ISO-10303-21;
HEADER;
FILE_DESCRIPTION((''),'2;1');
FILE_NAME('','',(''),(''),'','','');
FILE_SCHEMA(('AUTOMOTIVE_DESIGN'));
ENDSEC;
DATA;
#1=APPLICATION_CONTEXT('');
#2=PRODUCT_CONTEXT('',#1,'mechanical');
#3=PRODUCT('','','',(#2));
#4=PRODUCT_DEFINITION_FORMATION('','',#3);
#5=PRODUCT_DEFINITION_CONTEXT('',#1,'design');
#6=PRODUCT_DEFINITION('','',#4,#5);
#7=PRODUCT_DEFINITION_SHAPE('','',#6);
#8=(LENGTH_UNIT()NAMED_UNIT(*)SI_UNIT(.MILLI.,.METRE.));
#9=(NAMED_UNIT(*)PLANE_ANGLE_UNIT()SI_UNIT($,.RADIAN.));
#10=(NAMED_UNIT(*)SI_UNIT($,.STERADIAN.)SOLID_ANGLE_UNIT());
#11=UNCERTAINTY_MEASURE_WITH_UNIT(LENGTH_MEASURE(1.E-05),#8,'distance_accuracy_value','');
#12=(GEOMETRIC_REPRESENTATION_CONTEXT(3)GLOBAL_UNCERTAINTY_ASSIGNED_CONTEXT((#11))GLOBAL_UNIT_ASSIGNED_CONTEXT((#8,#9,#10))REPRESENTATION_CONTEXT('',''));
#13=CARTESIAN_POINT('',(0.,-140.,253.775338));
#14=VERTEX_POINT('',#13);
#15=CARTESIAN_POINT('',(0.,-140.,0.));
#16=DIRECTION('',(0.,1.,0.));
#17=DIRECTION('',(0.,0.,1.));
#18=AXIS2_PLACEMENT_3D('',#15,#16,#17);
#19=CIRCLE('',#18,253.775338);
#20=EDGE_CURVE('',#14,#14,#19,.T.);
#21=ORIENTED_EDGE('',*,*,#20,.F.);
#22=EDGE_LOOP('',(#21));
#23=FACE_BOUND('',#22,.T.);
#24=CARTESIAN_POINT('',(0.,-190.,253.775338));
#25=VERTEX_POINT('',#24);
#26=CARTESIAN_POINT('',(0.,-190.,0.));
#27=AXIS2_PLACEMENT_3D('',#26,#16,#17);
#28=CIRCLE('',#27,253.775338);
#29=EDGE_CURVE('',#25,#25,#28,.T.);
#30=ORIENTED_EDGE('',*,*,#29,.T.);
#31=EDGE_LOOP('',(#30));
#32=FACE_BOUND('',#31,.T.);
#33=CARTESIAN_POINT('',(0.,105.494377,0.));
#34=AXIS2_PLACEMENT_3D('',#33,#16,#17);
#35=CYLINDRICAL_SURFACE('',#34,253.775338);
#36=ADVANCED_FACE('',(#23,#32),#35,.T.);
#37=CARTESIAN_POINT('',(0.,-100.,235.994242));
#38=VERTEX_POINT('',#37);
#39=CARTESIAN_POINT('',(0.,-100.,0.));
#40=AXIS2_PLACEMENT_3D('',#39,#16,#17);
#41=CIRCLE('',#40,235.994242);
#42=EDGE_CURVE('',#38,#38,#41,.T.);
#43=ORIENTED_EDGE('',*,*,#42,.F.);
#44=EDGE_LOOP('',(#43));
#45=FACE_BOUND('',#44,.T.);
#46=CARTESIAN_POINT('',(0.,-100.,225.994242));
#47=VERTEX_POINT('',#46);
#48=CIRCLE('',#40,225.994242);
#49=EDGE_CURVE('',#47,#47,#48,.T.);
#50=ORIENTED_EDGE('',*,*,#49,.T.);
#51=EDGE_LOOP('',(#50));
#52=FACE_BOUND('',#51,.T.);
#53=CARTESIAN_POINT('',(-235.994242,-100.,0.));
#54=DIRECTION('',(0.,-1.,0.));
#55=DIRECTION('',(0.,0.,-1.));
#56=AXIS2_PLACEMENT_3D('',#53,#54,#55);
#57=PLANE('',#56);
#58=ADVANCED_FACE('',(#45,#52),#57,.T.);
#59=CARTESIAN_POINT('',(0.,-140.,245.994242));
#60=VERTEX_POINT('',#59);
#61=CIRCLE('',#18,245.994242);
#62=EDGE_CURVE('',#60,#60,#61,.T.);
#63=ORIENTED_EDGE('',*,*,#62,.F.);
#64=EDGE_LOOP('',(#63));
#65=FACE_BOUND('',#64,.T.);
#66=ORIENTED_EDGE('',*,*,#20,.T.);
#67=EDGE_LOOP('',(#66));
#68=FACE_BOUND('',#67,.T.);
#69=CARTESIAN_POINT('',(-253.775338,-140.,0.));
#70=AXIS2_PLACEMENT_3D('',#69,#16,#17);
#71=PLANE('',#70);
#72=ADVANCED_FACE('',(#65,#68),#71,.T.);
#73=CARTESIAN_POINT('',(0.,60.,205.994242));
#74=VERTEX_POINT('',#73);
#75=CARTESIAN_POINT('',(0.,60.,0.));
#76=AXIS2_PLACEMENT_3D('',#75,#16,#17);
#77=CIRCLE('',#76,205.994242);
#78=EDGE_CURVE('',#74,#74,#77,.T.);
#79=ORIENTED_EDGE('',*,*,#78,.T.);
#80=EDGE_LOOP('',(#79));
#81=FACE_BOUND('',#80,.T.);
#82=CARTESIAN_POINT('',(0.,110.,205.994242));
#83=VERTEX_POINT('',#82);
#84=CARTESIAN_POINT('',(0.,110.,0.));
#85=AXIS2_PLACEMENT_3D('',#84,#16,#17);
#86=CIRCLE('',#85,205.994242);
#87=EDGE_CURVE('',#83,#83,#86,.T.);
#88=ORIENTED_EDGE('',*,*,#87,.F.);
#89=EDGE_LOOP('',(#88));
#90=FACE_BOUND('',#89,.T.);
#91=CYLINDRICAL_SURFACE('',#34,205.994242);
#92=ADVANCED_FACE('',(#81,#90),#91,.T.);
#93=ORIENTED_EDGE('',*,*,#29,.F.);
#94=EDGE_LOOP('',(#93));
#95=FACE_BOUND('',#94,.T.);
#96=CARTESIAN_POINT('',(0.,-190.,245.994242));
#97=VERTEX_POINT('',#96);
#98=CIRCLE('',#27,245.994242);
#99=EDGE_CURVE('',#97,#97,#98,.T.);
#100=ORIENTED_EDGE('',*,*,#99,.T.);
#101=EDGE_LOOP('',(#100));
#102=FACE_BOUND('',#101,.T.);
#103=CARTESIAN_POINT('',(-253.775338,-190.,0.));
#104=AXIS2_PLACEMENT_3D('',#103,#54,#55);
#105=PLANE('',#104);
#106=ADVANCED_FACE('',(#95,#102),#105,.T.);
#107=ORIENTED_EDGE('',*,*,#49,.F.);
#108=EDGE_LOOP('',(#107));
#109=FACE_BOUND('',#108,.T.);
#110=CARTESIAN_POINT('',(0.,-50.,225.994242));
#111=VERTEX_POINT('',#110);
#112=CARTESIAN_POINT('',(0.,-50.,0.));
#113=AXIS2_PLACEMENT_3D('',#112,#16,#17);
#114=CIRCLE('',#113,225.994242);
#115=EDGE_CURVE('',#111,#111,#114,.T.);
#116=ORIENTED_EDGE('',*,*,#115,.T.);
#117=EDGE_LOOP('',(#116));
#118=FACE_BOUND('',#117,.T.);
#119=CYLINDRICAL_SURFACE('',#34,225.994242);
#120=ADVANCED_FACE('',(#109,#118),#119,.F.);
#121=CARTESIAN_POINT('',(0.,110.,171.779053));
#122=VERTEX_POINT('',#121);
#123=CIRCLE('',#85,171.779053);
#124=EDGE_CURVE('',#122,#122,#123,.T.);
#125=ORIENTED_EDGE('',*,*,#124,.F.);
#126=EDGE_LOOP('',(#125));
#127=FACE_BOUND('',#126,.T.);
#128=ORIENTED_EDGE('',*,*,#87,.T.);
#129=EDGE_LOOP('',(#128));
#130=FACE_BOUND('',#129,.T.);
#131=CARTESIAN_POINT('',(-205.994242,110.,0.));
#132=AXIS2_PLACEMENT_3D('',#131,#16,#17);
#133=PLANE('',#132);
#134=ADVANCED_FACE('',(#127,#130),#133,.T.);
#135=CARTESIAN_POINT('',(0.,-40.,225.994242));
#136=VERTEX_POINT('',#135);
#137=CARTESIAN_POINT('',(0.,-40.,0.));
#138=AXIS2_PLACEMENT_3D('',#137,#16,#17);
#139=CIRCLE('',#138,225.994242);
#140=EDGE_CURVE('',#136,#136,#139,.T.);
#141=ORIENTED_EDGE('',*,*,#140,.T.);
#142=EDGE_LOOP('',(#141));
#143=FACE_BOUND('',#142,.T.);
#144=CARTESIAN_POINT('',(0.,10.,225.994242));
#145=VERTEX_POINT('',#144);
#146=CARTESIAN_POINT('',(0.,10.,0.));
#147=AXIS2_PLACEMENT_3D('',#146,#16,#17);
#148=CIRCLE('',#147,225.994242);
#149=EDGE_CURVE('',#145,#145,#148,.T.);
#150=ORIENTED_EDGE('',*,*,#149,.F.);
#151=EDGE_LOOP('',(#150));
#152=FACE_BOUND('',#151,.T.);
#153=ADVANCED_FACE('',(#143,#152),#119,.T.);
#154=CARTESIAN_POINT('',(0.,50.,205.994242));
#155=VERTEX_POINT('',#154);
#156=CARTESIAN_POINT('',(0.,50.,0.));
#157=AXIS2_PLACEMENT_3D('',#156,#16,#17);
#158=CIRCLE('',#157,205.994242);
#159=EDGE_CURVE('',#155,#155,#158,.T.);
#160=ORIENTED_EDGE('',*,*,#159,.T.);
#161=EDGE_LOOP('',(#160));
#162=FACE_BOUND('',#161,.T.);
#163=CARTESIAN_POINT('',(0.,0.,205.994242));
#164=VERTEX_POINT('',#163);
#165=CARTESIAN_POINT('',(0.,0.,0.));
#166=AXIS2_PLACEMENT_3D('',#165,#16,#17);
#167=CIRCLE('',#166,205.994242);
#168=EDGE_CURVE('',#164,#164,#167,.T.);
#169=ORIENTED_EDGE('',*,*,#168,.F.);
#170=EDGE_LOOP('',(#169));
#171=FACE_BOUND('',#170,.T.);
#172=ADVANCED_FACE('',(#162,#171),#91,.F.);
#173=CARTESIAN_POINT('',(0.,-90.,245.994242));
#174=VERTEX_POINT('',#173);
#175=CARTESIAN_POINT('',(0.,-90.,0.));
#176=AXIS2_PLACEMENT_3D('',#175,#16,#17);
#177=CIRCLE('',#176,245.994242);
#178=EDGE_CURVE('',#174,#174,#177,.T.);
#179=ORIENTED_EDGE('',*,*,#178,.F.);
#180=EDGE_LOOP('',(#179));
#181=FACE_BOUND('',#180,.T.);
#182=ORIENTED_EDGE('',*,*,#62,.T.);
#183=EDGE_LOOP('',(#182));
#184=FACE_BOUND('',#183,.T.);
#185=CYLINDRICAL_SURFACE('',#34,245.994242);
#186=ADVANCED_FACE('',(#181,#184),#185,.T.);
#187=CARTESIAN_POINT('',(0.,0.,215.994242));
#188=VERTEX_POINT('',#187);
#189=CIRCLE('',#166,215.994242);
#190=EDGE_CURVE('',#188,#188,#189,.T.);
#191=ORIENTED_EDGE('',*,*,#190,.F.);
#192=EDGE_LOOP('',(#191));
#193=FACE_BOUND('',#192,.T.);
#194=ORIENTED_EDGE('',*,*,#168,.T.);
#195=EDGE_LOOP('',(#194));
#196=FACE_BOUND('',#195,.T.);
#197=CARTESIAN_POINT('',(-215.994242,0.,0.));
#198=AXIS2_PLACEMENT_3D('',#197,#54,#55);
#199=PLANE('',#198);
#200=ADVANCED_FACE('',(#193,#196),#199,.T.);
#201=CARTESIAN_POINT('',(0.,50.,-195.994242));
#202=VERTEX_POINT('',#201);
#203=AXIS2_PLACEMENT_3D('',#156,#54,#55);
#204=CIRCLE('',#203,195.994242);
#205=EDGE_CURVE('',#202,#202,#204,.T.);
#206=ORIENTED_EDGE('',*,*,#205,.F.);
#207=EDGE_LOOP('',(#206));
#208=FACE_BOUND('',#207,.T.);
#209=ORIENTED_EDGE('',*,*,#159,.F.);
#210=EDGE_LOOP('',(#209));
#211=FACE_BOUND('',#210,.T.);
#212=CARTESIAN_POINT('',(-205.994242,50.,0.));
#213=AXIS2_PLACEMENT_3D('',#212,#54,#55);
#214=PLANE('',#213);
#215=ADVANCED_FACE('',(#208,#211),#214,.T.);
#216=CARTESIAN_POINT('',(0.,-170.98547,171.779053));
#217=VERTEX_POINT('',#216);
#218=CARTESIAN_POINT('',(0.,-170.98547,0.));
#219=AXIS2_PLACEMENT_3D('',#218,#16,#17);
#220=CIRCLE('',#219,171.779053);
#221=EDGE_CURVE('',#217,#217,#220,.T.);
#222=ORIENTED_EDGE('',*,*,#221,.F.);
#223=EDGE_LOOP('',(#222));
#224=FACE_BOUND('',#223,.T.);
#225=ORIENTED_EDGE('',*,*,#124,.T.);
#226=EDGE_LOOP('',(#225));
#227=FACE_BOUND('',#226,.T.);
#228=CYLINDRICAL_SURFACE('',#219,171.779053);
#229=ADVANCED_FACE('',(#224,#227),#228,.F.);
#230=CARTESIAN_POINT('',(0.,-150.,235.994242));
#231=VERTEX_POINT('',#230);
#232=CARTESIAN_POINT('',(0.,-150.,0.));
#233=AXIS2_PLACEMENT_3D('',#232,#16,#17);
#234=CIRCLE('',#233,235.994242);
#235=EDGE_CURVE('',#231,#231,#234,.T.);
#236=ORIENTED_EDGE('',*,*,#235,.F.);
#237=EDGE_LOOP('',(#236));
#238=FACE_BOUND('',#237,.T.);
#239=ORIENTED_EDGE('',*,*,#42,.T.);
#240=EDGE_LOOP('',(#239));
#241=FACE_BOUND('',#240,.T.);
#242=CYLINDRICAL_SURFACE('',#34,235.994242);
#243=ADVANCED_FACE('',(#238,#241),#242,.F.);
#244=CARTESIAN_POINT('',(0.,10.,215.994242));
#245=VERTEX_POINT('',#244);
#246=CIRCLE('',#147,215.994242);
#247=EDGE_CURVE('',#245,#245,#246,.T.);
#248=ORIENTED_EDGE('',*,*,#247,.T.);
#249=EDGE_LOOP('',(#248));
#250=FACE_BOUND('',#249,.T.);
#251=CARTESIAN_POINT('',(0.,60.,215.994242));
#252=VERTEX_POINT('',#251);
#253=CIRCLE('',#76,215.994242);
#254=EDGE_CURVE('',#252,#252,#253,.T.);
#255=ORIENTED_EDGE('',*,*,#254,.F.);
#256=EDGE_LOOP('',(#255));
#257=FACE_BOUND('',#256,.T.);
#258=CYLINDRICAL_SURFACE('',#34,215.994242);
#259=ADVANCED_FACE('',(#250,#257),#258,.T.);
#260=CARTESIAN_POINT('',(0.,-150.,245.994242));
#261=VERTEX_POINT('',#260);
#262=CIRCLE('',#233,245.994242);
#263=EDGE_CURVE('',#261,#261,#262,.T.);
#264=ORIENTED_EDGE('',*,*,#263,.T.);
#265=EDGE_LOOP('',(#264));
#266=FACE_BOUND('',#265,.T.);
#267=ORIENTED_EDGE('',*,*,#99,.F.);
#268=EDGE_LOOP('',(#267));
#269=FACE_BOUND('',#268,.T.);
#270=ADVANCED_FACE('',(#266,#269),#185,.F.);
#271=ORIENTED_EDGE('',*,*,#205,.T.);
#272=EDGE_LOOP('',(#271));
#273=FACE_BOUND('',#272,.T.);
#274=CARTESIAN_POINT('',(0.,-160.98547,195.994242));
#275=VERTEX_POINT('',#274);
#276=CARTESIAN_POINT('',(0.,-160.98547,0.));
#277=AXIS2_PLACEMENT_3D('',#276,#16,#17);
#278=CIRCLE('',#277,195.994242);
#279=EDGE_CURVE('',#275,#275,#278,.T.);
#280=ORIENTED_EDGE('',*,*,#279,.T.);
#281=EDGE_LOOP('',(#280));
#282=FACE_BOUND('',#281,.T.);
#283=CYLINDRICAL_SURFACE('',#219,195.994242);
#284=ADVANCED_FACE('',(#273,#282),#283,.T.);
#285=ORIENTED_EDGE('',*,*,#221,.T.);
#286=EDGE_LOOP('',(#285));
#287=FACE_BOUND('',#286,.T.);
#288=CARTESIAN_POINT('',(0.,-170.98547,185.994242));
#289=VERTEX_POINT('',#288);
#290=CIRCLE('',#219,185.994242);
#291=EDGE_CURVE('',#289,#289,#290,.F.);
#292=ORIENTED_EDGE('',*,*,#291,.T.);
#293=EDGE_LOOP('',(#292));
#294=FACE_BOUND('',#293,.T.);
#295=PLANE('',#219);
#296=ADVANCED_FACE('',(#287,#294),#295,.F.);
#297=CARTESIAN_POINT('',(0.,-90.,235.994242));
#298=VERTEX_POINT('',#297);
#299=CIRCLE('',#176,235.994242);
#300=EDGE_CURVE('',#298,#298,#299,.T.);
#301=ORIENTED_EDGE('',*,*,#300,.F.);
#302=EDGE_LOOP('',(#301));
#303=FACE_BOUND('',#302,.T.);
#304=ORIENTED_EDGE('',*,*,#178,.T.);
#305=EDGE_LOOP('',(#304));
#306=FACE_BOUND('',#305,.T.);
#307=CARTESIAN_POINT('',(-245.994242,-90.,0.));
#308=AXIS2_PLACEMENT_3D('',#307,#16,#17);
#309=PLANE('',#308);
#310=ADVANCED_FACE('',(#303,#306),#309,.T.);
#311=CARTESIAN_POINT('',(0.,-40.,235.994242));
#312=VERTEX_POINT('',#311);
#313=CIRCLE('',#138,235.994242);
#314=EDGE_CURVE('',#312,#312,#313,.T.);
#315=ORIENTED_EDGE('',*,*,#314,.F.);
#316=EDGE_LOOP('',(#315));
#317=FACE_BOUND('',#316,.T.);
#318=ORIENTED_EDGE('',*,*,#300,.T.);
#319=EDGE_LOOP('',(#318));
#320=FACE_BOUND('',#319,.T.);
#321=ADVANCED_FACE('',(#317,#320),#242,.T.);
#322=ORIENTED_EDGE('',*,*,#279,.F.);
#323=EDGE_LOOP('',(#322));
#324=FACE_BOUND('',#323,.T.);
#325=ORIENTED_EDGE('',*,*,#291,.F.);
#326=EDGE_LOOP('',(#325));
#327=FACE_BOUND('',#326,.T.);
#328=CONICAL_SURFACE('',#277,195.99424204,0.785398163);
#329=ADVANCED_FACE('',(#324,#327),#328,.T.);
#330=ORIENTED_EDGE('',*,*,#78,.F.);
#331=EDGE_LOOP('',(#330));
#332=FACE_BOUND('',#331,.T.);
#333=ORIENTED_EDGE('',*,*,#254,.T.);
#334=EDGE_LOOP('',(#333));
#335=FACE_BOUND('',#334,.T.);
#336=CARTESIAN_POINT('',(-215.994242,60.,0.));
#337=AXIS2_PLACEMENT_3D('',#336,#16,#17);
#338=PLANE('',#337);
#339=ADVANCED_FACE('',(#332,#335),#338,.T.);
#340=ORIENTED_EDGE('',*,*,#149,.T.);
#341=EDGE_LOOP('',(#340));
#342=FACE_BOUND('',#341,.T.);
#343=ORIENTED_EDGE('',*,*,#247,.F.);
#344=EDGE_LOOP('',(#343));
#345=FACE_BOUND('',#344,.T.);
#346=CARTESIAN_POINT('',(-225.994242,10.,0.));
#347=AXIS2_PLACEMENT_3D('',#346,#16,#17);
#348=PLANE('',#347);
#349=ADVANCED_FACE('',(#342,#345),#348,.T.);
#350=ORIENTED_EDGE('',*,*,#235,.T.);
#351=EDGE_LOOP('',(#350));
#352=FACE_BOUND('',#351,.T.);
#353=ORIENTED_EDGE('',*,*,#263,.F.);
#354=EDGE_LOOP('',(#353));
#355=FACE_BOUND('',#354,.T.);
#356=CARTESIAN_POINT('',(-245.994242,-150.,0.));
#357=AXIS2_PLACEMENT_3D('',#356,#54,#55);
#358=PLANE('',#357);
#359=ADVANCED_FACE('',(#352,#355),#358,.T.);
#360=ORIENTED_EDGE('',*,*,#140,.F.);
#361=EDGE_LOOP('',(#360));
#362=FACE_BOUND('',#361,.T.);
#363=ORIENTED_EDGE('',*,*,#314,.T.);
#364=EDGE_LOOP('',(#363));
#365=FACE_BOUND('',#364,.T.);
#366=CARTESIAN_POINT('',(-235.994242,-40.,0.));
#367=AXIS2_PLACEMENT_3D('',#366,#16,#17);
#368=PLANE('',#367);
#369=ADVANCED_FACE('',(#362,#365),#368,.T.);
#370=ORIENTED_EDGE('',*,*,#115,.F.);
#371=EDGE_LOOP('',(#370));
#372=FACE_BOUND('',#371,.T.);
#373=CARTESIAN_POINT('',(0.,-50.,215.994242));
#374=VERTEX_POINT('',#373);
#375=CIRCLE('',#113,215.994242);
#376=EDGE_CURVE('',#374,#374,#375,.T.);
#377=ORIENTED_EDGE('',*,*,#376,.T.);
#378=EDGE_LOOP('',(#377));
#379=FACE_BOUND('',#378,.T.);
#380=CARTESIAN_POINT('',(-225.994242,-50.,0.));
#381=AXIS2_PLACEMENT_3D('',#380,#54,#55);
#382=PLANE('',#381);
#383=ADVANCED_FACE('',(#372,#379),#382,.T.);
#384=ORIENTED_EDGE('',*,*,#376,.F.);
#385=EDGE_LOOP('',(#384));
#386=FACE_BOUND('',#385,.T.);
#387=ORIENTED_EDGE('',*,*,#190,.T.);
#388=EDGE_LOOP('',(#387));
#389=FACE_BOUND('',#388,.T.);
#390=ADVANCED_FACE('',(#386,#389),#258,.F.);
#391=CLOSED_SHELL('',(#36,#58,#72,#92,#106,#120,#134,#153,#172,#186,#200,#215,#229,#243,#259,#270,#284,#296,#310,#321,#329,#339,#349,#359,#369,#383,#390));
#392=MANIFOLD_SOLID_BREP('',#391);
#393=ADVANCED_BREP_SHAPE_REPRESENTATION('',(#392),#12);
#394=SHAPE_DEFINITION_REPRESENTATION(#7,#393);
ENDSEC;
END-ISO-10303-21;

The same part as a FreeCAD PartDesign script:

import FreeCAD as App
import Part
import Sketcher
Q = App.Units.Quantity


def edges_at(feature, points):
    """Names of the edges that pass closest to the given points."""
    edges = feature.Shape.Edges
    near = lambda p: min(range(len(edges)), key=lambda i: edges[i].distToShape(Part.Vertex(*p))[0])
    return sorted({f"Edge{near(p) + 1}" for p in points})


def add_polygon(sketch, points):
    """Adds a closed chain of lines whose ends are joined by coincident constraints."""
    first, n = sketch.GeometryCount, len(points)
    for a, b in zip(points, points[1:] + points[:1]):
        sketch.addGeometry(Part.LineSegment(App.Vector(*a, 0), App.Vector(*b, 0)), False)
    for i in range(n):
        sketch.addConstraint(Sketcher.Constraint("Coincident", first + i, 2, first + (i + 1) % n, 1))

doc = App.newDocument("Part")
body = doc.addObject("PartDesign::Body", "Body")

# Sketch on XY plane
sketch1 = body.newObject("Sketcher::SketchObject", "Sketch")
sketch1.AttachmentSupport = (doc.getObject("XY_Plane"), [""])
sketch1.MapMode = "FlatFace"
add_polygon(sketch1, [(-254, -190), (-246, -190), (-246, -150), (-236, -150), (-236, -100), (-226, -100), (-226, -50), (-216, -50), (-216, 0), (-206, 0), (-206, 50), (-196, 50), (-196, 110), (-206, 110), (-206, 60), (-216, 60), (-216, 10), (-226, 10), (-226, -40), (-236, -40), (-236, -90), (-246, -90), (-246, -140), (-254, -140)])  # lines 0-23
sketch1.addConstraint([
    Sketcher.Constraint("Horizontal", 0),
    Sketcher.Constraint("Vertical", 1),
    Sketcher.Constraint("Horizontal", 2),
    Sketcher.Constraint("Vertical", 3),
    Sketcher.Constraint("Horizontal", 4),
    Sketcher.Constraint("Vertical", 5),
    Sketcher.Constraint("Horizontal", 6),
    Sketcher.Constraint("Vertical", 7),
    Sketcher.Constraint("Horizontal", 8),
    Sketcher.Constraint("Vertical", 9),
    Sketcher.Constraint("Horizontal", 10),
    Sketcher.Constraint("Vertical", 11),
    Sketcher.Constraint("Horizontal", 12),
    Sketcher.Constraint("Vertical", 13),
    Sketcher.Constraint("Horizontal", 14),
    Sketcher.Constraint("Vertical", 15),
    Sketcher.Constraint("Horizontal", 16),
    Sketcher.Constraint("Vertical", 17),
    Sketcher.Constraint("Horizontal", 18),
    Sketcher.Constraint("Vertical", 19),
    Sketcher.Constraint("Horizontal", 20),
    Sketcher.Constraint("Vertical", 21),
    Sketcher.Constraint("Horizontal", 22),
    Sketcher.Constraint("Vertical", 23),
    Sketcher.Constraint("PointOnObject", 7, 2, -1),
    Sketcher.Constraint("Vertical", 9, 2, 12, 2),
    Sketcher.Constraint("Vertical", 7, 2, 14, 2),
    Sketcher.Constraint("Vertical", 5, 2, 16, 2),
    Sketcher.Constraint("Vertical", 3, 2, 18, 2),
    Sketcher.Constraint("Vertical", 1, 2, 20, 2),
    Sketcher.Constraint("Equal", 2, 4),
    Sketcher.Constraint("Equal", 4, 6),
    Sketcher.Constraint("Equal", 6, 8),
    Sketcher.Constraint("Equal", 8, 10),
    Sketcher.Constraint("Equal", 3, 5),
    Sketcher.Constraint("Equal", 5, 7),
    Sketcher.Constraint("Equal", 7, 9),
    Sketcher.Constraint("Equal", 9, 13),
    Sketcher.Constraint("Equal", 13, 15),
    Sketcher.Constraint("Equal", 15, 17),
    Sketcher.Constraint("Equal", 17, 19),
    Sketcher.Constraint("Equal", 19, 21),
    Sketcher.Constraint("Equal", 21, 23),
    Sketcher.Constraint("DistanceX", 2, 1, 2, 2, Q("10 mm")),
    Sketcher.Constraint("DistanceY", 1, 1, 1, 2, Q("40 mm")),
    Sketcher.Constraint("DistanceY", 3, 1, 3, 2, Q("50 mm")),
    Sketcher.Constraint("DistanceX", 0, 1, 0, 2, Q("7.781096 mm")),
    Sketcher.Constraint("DistanceX", 0, 2, -1, 1, Q("245.994242 mm")),
])
revolution = body.newObject("PartDesign::Revolution", "Revolution")
revolution.Profile = sketch1
revolution.ReferenceAxis = (sketch1, ["V_Axis"])
revolution.Angle = 360

# Sketch on XZ plane
sketch2 = body.newObject("Sketcher::SketchObject", "Sketch001")
sketch2.AttachmentSupport = (doc.getObject("XZ_Plane"), [""])
sketch2.MapMode = "FlatFace"
sketch2.AttachmentOffset = App.Placement(App.Vector(0, 0, -110), App.Rotation())
sketch2.addGeometry([
    Part.Circle(App.Vector(0, 0, 0), App.Vector(0, 0, 1), 196),
    Part.Circle(App.Vector(0, 0, 0), App.Vector(0, 0, 1), 172),
], False)
sketch2.addConstraint([
    Sketcher.Constraint("Coincident", 0, 3, -1, 1),
    Sketcher.Constraint("Coincident", 1, 3, -1, 1),
    Sketcher.Constraint("Diameter", 0, Q("391.988484 mm")),
    Sketcher.Constraint("Diameter", 1, Q("343.558107 mm")),
])
pad1 = body.newObject("PartDesign::Pad", "Pad")
pad1.Profile = sketch2
pad1.Length = 280.98547
doc.recompute()

chamfer = body.newObject("PartDesign::Chamfer", "Chamfer")
chamfer.Base = (pad1, edges_at(pad1, [(0, -170.985, -195.994)]))
chamfer.Size = 10

doc.recompute()
